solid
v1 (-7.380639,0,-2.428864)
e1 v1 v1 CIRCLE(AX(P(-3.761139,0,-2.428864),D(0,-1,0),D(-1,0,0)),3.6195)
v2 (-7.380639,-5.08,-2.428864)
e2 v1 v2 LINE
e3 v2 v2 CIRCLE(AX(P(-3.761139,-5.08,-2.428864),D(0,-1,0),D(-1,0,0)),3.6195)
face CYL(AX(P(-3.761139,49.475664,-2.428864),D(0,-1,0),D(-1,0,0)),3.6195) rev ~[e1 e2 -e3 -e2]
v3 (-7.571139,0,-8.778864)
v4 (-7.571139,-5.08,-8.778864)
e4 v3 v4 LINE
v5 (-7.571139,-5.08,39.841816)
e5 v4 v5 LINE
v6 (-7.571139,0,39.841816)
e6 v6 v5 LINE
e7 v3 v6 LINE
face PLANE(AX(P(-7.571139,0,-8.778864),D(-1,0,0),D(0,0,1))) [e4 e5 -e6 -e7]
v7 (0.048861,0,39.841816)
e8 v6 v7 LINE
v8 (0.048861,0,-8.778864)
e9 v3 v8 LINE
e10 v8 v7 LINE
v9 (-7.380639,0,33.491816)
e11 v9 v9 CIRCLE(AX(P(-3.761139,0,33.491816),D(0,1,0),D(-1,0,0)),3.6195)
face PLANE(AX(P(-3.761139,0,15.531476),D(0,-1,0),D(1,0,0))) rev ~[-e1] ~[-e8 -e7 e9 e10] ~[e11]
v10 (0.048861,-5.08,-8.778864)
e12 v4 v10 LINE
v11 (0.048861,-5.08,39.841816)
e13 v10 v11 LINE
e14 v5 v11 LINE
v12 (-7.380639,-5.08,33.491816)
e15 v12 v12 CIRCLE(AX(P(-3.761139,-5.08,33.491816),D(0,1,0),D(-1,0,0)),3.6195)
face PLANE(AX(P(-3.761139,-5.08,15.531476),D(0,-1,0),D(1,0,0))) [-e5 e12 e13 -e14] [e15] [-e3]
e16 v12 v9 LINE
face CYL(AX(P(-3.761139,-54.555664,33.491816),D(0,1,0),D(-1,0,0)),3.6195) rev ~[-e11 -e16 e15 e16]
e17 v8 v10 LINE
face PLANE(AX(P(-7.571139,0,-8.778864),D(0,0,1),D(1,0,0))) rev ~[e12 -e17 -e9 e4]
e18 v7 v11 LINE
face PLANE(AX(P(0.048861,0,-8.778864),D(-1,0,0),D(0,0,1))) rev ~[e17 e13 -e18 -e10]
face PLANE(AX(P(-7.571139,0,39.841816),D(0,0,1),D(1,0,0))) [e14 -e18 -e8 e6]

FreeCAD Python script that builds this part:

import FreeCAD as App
import Part
import Sketcher
Q = App.Units.Quantity

doc = App.newDocument("Part")
body = doc.addObject("PartDesign::Body", "Body")

sketch1 = doc.addObject("Sketcher::SketchObject", "Sketch")
body.addObject(sketch1)
sketch1.AttachmentSupport = (doc.XZ_Plane, [""])
sketch1.MapMode = "FlatFace"
sketch1.addGeometry(Part.LineSegment(App.Vector(-8, 40, 0), App.Vector(-8, -9, 0)), False)
sketch1.addGeometry(Part.LineSegment(App.Vector(-8, -9, 0), App.Vector(0, -9, 0)), False)
sketch1.addGeometry(Part.LineSegment(App.Vector(0, -9, 0), App.Vector(0, 40, 0)), False)
sketch1.addGeometry(Part.LineSegment(App.Vector(0, 40, 0), App.Vector(-8, 40, 0)), False)
sketch1.addConstraint(Sketcher.Constraint("Coincident", 0, 2, 1, 1))
sketch1.addConstraint(Sketcher.Constraint("Coincident", 1, 2, 2, 1))
sketch1.addConstraint(Sketcher.Constraint("Coincident", 2, 2, 3, 1))
sketch1.addConstraint(Sketcher.Constraint("Coincident", 3, 2, 0, 1))
sketch1.addConstraint(Sketcher.Constraint("Vertical", 0))
sketch1.addConstraint(Sketcher.Constraint("Horizontal", 1))
sketch1.addConstraint(Sketcher.Constraint("Vertical", 2))
sketch1.addConstraint(Sketcher.Constraint("Horizontal", 3))
sketch1.addConstraint(Sketcher.Constraint("DistanceX", 1, 1, 1, 2, Q("0.3 in")))
sketch1.addConstraint(Sketcher.Constraint("DistanceY", 0, 2, 0, 1, Q("1.9142 in")))
sketch1.addConstraint(Sketcher.Constraint("DistanceX", 0, 2, -1, 1, 7.571139))
sketch1.addConstraint(Sketcher.Constraint("DistanceY", 0, 2, -1, 1, 8.778864))
pad1 = doc.addObject("PartDesign::Pad", "Pad")
body.addObject(pad1)
pad1.Profile = sketch1
pad1.Length = Q("0.2 in")

sketch2 = doc.addObject("Sketcher::SketchObject", "Sketch001")
body.addObject(sketch2)
sketch2.AttachmentSupport = (doc.XZ_Plane, [""])
sketch2.MapMode = "FlatFace"
sketch2.AttachmentOffset = App.Placement(App.Vector(0, 0, 0.2 * 25.4), App.Rotation())
sketch2.addGeometry(Part.Circle(App.Vector(-3.8, 33.5, 0), App.Vector(0, 0, 1), 3.6), False)
sketch2.addConstraint(Sketcher.Constraint("Diameter", 0, Q("0.285 in")))
sketch2.addConstraint(Sketcher.Constraint("DistanceX", 0, 3, -1, 1, 3.761139))
sketch2.addConstraint(Sketcher.Constraint("DistanceY", -1, 1, 0, 3, 33.491816))
doc.recompute()
hole = doc.addObject("PartDesign::Hole", "Hole")
body.addObject(hole)
hole.Profile = sketch2
hole.ThreadType = "None"
hole.Diameter = Q("0.285 in")
hole.DepthType = "ThroughAll"

sketch3 = doc.addObject("Sketcher::SketchObject", "Sketch002")
body.addObject(sketch3)
sketch3.AttachmentSupport = (doc.XZ_Plane, [""])
sketch3.MapMode = "FlatFace"
sketch3.addGeometry(Part.Circle(App.Vector(-3.8, -2.4, 0), App.Vector(0, 0, 1), 3.6), False)
sketch3.addConstraint(Sketcher.Constraint("Diameter", 0, Q("0.285 in")))
sketch3.addConstraint(Sketcher.Constraint("DistanceX", 0, 3, -1, 1, 3.761139))
sketch3.addConstraint(Sketcher.Constraint("DistanceY", 0, 3, -1, 1, 2.428864))
doc.recompute()
hole2 = doc.addObject("PartDesign::Hole", "Hole001")
body.addObject(hole2)
hole2.Profile = sketch3
hole2.ThreadType = "None"
hole2.Diameter = Q("0.285 in")
hole2.DepthType = "ThroughAll"
hole2.Reversed = True

doc.recompute()
